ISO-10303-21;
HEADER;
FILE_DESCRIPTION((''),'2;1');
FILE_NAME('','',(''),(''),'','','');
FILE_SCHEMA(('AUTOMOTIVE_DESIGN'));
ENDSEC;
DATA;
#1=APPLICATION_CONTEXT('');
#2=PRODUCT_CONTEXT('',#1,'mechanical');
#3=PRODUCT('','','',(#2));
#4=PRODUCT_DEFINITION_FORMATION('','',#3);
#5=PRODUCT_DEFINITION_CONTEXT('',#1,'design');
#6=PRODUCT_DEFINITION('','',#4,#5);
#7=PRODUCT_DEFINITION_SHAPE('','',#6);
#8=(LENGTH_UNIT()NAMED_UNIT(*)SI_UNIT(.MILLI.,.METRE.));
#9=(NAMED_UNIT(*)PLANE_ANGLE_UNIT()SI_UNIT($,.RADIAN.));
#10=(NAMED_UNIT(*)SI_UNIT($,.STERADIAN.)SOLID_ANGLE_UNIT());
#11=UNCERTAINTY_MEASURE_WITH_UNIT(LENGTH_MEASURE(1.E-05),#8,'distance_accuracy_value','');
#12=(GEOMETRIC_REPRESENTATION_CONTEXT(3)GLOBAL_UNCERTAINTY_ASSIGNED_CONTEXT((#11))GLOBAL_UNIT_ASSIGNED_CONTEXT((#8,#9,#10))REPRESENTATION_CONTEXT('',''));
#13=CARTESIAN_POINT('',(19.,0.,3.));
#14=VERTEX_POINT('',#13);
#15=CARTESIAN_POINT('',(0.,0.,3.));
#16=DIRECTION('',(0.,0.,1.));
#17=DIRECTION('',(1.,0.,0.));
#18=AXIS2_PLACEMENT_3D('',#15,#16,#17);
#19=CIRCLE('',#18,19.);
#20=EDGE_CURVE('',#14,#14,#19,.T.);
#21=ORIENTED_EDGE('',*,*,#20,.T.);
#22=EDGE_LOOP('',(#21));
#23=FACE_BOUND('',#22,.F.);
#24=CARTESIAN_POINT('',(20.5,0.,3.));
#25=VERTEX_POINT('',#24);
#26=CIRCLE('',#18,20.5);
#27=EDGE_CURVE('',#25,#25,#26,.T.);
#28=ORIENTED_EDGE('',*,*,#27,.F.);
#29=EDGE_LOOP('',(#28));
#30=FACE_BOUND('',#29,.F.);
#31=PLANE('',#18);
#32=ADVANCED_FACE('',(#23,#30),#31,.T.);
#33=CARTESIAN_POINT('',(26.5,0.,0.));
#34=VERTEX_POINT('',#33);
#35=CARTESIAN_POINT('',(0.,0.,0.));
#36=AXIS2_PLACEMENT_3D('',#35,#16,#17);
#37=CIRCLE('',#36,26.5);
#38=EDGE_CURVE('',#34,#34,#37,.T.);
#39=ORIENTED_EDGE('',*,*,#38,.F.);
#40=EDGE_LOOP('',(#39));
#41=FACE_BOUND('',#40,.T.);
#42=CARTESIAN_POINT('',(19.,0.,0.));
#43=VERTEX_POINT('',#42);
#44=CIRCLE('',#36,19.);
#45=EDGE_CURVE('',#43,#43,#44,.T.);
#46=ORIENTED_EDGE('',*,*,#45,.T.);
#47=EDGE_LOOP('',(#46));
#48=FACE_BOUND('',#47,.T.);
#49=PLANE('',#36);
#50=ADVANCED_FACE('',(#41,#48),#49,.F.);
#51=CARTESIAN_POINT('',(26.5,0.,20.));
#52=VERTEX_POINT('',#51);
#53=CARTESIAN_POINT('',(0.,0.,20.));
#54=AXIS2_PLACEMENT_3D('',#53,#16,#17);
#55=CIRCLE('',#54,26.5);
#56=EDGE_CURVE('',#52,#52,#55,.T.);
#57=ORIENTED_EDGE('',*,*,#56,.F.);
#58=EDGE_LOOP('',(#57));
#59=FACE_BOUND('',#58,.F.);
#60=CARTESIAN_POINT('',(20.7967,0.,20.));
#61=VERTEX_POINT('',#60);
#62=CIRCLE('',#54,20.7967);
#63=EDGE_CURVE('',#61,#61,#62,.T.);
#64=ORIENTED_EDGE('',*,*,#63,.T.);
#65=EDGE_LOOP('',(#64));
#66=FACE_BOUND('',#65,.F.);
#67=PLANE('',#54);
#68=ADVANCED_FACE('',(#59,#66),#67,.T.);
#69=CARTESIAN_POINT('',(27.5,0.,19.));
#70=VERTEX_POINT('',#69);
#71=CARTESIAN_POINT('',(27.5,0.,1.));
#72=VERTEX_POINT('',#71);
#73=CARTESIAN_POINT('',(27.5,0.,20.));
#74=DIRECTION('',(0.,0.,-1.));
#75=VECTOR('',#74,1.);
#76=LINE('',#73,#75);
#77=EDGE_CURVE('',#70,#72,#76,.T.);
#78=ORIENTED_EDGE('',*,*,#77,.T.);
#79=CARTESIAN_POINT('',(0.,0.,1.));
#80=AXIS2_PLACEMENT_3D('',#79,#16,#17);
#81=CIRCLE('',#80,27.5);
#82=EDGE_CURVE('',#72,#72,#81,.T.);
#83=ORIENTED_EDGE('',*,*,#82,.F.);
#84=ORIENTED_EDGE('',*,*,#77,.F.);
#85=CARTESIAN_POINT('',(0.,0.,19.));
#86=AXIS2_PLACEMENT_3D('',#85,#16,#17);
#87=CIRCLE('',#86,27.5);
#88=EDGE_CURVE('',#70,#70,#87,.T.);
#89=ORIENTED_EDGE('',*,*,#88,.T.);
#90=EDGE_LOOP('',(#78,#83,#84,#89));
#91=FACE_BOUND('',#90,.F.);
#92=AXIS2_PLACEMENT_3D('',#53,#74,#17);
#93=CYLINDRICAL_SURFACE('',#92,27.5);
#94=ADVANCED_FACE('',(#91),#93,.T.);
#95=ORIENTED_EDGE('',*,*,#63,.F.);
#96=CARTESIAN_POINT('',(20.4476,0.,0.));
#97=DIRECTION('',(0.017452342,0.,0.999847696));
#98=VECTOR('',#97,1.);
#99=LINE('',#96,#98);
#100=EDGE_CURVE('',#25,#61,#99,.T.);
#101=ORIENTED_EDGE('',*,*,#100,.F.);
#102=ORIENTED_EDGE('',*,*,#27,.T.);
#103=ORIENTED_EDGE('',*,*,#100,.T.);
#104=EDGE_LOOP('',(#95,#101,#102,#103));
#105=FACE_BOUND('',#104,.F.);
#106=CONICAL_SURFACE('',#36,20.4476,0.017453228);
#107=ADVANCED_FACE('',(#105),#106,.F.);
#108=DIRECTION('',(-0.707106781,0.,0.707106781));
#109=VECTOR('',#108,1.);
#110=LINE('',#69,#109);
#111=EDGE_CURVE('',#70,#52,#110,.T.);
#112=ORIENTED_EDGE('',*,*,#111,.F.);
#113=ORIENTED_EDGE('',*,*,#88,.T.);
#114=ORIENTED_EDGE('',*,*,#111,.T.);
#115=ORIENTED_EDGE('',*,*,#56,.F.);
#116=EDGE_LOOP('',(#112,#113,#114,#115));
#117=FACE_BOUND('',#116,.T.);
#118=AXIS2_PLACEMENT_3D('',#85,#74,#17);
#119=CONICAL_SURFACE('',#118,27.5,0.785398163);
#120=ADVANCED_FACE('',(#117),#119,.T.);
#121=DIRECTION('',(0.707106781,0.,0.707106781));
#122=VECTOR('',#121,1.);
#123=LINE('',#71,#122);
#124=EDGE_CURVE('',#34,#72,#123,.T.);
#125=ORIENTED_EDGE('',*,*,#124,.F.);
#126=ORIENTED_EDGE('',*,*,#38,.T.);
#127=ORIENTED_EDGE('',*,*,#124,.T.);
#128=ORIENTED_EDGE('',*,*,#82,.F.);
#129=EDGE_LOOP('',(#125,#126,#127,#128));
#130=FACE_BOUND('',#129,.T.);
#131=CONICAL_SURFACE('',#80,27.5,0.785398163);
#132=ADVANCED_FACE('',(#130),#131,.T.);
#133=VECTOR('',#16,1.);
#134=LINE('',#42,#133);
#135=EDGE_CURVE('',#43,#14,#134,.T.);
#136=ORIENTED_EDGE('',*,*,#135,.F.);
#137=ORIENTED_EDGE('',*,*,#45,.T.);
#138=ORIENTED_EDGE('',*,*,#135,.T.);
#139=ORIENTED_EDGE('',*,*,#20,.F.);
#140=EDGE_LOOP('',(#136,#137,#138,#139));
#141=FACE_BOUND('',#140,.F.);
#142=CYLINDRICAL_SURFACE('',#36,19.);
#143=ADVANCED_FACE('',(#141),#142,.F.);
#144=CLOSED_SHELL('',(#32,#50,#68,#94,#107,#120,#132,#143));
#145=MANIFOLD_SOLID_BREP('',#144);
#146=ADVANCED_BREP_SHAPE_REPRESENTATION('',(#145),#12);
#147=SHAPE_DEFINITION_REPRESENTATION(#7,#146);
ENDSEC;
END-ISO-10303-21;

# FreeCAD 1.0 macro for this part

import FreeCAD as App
import Part
import Sketcher
Q = App.Units.Quantity


def edges_at(feature, points):
    """Names of the edges that pass closest to the given points."""
    edges = feature.Shape.Edges
    near = lambda p: min(range(len(edges)), key=lambda i: edges[i].distToShape(Part.Vertex(*p))[0])
    return sorted({f"Edge{near(p) + 1}" for p in points})


def add_polygon(sketch, points):
    """Adds a closed chain of lines whose ends are joined by coincident constraints."""
    first, n = sketch.GeometryCount, len(points)
    for a, b in zip(points, points[1:] + points[:1]):
        sketch.addGeometry(Part.LineSegment(App.Vector(*a, 0), App.Vector(*b, 0)), False)
    for i in range(n):
        sketch.addConstraint(Sketcher.Constraint("Coincident", first + i, 2, first + (i + 1) % n, 1))

doc = App.newDocument("Part")
body = doc.addObject("PartDesign::Body", "Body")

# Sketch on XZ plane
sketch1 = body.newObject("Sketcher::SketchObject", "Sketch")
sketch1.AttachmentSupport = (doc.getObject("XZ_Plane"), [""])
sketch1.MapMode = "FlatFace"
add_polygon(sketch1, [(19, 0), (19, 3), (20.499965, 3.000001), (20.7967, 20), (27.5, 20), (27.5, 0)])  # lines 0-5
sketch1.addConstraint(Sketcher.Constraint("Vertical", 0))
sketch1.addConstraint(Sketcher.Constraint("Horizontal", 1))
sketch1.addConstraint(Sketcher.Constraint("Horizontal", 3))
sketch1.addConstraint(Sketcher.Constraint("Vertical", 4))
sketch1.addConstraint(Sketcher.Constraint("Horizontal", 5))
sketch1.addConstraint(Sketcher.Constraint("PointOnObject", 4, 2, -1))
sketch1.addConstraint(Sketcher.Constraint("DistanceY", 0, 1, 0, 2, Q("3 mm")))
sketch1.addConstraint(Sketcher.Constraint("DistanceY", 4, 2, 4, 1, Q("20 mm")))
sketch1.addConstraint(Sketcher.Constraint("DistanceX", -1, 1, 0, 2, Q("19 mm")))
sketch1.addConstraint(Sketcher.Constraint("DistanceX", -1, 1, 1, 2, Q("20.5 mm")))
sketch1.addConstraint(Sketcher.Constraint("DistanceX", -1, 1, 3, 2, Q("27.5 mm")))
sketch1.addConstraint(Sketcher.Constraint("Angle", 2, Q("89 deg")))
revolution = body.newObject("PartDesign::Revolution", "Revolution")
revolution.Profile = sketch1
revolution.ReferenceAxis = (sketch1, ["V_Axis"])
revolution.Angle = 360
doc.recompute()

chamfer = body.newObject("PartDesign::Chamfer", "Chamfer")
chamfer.Base = (revolution, edges_at(revolution, [(-27.5, 0, 20), (-27.5, 0, 0)]))
chamfer.Size = 1

doc.recompute()
